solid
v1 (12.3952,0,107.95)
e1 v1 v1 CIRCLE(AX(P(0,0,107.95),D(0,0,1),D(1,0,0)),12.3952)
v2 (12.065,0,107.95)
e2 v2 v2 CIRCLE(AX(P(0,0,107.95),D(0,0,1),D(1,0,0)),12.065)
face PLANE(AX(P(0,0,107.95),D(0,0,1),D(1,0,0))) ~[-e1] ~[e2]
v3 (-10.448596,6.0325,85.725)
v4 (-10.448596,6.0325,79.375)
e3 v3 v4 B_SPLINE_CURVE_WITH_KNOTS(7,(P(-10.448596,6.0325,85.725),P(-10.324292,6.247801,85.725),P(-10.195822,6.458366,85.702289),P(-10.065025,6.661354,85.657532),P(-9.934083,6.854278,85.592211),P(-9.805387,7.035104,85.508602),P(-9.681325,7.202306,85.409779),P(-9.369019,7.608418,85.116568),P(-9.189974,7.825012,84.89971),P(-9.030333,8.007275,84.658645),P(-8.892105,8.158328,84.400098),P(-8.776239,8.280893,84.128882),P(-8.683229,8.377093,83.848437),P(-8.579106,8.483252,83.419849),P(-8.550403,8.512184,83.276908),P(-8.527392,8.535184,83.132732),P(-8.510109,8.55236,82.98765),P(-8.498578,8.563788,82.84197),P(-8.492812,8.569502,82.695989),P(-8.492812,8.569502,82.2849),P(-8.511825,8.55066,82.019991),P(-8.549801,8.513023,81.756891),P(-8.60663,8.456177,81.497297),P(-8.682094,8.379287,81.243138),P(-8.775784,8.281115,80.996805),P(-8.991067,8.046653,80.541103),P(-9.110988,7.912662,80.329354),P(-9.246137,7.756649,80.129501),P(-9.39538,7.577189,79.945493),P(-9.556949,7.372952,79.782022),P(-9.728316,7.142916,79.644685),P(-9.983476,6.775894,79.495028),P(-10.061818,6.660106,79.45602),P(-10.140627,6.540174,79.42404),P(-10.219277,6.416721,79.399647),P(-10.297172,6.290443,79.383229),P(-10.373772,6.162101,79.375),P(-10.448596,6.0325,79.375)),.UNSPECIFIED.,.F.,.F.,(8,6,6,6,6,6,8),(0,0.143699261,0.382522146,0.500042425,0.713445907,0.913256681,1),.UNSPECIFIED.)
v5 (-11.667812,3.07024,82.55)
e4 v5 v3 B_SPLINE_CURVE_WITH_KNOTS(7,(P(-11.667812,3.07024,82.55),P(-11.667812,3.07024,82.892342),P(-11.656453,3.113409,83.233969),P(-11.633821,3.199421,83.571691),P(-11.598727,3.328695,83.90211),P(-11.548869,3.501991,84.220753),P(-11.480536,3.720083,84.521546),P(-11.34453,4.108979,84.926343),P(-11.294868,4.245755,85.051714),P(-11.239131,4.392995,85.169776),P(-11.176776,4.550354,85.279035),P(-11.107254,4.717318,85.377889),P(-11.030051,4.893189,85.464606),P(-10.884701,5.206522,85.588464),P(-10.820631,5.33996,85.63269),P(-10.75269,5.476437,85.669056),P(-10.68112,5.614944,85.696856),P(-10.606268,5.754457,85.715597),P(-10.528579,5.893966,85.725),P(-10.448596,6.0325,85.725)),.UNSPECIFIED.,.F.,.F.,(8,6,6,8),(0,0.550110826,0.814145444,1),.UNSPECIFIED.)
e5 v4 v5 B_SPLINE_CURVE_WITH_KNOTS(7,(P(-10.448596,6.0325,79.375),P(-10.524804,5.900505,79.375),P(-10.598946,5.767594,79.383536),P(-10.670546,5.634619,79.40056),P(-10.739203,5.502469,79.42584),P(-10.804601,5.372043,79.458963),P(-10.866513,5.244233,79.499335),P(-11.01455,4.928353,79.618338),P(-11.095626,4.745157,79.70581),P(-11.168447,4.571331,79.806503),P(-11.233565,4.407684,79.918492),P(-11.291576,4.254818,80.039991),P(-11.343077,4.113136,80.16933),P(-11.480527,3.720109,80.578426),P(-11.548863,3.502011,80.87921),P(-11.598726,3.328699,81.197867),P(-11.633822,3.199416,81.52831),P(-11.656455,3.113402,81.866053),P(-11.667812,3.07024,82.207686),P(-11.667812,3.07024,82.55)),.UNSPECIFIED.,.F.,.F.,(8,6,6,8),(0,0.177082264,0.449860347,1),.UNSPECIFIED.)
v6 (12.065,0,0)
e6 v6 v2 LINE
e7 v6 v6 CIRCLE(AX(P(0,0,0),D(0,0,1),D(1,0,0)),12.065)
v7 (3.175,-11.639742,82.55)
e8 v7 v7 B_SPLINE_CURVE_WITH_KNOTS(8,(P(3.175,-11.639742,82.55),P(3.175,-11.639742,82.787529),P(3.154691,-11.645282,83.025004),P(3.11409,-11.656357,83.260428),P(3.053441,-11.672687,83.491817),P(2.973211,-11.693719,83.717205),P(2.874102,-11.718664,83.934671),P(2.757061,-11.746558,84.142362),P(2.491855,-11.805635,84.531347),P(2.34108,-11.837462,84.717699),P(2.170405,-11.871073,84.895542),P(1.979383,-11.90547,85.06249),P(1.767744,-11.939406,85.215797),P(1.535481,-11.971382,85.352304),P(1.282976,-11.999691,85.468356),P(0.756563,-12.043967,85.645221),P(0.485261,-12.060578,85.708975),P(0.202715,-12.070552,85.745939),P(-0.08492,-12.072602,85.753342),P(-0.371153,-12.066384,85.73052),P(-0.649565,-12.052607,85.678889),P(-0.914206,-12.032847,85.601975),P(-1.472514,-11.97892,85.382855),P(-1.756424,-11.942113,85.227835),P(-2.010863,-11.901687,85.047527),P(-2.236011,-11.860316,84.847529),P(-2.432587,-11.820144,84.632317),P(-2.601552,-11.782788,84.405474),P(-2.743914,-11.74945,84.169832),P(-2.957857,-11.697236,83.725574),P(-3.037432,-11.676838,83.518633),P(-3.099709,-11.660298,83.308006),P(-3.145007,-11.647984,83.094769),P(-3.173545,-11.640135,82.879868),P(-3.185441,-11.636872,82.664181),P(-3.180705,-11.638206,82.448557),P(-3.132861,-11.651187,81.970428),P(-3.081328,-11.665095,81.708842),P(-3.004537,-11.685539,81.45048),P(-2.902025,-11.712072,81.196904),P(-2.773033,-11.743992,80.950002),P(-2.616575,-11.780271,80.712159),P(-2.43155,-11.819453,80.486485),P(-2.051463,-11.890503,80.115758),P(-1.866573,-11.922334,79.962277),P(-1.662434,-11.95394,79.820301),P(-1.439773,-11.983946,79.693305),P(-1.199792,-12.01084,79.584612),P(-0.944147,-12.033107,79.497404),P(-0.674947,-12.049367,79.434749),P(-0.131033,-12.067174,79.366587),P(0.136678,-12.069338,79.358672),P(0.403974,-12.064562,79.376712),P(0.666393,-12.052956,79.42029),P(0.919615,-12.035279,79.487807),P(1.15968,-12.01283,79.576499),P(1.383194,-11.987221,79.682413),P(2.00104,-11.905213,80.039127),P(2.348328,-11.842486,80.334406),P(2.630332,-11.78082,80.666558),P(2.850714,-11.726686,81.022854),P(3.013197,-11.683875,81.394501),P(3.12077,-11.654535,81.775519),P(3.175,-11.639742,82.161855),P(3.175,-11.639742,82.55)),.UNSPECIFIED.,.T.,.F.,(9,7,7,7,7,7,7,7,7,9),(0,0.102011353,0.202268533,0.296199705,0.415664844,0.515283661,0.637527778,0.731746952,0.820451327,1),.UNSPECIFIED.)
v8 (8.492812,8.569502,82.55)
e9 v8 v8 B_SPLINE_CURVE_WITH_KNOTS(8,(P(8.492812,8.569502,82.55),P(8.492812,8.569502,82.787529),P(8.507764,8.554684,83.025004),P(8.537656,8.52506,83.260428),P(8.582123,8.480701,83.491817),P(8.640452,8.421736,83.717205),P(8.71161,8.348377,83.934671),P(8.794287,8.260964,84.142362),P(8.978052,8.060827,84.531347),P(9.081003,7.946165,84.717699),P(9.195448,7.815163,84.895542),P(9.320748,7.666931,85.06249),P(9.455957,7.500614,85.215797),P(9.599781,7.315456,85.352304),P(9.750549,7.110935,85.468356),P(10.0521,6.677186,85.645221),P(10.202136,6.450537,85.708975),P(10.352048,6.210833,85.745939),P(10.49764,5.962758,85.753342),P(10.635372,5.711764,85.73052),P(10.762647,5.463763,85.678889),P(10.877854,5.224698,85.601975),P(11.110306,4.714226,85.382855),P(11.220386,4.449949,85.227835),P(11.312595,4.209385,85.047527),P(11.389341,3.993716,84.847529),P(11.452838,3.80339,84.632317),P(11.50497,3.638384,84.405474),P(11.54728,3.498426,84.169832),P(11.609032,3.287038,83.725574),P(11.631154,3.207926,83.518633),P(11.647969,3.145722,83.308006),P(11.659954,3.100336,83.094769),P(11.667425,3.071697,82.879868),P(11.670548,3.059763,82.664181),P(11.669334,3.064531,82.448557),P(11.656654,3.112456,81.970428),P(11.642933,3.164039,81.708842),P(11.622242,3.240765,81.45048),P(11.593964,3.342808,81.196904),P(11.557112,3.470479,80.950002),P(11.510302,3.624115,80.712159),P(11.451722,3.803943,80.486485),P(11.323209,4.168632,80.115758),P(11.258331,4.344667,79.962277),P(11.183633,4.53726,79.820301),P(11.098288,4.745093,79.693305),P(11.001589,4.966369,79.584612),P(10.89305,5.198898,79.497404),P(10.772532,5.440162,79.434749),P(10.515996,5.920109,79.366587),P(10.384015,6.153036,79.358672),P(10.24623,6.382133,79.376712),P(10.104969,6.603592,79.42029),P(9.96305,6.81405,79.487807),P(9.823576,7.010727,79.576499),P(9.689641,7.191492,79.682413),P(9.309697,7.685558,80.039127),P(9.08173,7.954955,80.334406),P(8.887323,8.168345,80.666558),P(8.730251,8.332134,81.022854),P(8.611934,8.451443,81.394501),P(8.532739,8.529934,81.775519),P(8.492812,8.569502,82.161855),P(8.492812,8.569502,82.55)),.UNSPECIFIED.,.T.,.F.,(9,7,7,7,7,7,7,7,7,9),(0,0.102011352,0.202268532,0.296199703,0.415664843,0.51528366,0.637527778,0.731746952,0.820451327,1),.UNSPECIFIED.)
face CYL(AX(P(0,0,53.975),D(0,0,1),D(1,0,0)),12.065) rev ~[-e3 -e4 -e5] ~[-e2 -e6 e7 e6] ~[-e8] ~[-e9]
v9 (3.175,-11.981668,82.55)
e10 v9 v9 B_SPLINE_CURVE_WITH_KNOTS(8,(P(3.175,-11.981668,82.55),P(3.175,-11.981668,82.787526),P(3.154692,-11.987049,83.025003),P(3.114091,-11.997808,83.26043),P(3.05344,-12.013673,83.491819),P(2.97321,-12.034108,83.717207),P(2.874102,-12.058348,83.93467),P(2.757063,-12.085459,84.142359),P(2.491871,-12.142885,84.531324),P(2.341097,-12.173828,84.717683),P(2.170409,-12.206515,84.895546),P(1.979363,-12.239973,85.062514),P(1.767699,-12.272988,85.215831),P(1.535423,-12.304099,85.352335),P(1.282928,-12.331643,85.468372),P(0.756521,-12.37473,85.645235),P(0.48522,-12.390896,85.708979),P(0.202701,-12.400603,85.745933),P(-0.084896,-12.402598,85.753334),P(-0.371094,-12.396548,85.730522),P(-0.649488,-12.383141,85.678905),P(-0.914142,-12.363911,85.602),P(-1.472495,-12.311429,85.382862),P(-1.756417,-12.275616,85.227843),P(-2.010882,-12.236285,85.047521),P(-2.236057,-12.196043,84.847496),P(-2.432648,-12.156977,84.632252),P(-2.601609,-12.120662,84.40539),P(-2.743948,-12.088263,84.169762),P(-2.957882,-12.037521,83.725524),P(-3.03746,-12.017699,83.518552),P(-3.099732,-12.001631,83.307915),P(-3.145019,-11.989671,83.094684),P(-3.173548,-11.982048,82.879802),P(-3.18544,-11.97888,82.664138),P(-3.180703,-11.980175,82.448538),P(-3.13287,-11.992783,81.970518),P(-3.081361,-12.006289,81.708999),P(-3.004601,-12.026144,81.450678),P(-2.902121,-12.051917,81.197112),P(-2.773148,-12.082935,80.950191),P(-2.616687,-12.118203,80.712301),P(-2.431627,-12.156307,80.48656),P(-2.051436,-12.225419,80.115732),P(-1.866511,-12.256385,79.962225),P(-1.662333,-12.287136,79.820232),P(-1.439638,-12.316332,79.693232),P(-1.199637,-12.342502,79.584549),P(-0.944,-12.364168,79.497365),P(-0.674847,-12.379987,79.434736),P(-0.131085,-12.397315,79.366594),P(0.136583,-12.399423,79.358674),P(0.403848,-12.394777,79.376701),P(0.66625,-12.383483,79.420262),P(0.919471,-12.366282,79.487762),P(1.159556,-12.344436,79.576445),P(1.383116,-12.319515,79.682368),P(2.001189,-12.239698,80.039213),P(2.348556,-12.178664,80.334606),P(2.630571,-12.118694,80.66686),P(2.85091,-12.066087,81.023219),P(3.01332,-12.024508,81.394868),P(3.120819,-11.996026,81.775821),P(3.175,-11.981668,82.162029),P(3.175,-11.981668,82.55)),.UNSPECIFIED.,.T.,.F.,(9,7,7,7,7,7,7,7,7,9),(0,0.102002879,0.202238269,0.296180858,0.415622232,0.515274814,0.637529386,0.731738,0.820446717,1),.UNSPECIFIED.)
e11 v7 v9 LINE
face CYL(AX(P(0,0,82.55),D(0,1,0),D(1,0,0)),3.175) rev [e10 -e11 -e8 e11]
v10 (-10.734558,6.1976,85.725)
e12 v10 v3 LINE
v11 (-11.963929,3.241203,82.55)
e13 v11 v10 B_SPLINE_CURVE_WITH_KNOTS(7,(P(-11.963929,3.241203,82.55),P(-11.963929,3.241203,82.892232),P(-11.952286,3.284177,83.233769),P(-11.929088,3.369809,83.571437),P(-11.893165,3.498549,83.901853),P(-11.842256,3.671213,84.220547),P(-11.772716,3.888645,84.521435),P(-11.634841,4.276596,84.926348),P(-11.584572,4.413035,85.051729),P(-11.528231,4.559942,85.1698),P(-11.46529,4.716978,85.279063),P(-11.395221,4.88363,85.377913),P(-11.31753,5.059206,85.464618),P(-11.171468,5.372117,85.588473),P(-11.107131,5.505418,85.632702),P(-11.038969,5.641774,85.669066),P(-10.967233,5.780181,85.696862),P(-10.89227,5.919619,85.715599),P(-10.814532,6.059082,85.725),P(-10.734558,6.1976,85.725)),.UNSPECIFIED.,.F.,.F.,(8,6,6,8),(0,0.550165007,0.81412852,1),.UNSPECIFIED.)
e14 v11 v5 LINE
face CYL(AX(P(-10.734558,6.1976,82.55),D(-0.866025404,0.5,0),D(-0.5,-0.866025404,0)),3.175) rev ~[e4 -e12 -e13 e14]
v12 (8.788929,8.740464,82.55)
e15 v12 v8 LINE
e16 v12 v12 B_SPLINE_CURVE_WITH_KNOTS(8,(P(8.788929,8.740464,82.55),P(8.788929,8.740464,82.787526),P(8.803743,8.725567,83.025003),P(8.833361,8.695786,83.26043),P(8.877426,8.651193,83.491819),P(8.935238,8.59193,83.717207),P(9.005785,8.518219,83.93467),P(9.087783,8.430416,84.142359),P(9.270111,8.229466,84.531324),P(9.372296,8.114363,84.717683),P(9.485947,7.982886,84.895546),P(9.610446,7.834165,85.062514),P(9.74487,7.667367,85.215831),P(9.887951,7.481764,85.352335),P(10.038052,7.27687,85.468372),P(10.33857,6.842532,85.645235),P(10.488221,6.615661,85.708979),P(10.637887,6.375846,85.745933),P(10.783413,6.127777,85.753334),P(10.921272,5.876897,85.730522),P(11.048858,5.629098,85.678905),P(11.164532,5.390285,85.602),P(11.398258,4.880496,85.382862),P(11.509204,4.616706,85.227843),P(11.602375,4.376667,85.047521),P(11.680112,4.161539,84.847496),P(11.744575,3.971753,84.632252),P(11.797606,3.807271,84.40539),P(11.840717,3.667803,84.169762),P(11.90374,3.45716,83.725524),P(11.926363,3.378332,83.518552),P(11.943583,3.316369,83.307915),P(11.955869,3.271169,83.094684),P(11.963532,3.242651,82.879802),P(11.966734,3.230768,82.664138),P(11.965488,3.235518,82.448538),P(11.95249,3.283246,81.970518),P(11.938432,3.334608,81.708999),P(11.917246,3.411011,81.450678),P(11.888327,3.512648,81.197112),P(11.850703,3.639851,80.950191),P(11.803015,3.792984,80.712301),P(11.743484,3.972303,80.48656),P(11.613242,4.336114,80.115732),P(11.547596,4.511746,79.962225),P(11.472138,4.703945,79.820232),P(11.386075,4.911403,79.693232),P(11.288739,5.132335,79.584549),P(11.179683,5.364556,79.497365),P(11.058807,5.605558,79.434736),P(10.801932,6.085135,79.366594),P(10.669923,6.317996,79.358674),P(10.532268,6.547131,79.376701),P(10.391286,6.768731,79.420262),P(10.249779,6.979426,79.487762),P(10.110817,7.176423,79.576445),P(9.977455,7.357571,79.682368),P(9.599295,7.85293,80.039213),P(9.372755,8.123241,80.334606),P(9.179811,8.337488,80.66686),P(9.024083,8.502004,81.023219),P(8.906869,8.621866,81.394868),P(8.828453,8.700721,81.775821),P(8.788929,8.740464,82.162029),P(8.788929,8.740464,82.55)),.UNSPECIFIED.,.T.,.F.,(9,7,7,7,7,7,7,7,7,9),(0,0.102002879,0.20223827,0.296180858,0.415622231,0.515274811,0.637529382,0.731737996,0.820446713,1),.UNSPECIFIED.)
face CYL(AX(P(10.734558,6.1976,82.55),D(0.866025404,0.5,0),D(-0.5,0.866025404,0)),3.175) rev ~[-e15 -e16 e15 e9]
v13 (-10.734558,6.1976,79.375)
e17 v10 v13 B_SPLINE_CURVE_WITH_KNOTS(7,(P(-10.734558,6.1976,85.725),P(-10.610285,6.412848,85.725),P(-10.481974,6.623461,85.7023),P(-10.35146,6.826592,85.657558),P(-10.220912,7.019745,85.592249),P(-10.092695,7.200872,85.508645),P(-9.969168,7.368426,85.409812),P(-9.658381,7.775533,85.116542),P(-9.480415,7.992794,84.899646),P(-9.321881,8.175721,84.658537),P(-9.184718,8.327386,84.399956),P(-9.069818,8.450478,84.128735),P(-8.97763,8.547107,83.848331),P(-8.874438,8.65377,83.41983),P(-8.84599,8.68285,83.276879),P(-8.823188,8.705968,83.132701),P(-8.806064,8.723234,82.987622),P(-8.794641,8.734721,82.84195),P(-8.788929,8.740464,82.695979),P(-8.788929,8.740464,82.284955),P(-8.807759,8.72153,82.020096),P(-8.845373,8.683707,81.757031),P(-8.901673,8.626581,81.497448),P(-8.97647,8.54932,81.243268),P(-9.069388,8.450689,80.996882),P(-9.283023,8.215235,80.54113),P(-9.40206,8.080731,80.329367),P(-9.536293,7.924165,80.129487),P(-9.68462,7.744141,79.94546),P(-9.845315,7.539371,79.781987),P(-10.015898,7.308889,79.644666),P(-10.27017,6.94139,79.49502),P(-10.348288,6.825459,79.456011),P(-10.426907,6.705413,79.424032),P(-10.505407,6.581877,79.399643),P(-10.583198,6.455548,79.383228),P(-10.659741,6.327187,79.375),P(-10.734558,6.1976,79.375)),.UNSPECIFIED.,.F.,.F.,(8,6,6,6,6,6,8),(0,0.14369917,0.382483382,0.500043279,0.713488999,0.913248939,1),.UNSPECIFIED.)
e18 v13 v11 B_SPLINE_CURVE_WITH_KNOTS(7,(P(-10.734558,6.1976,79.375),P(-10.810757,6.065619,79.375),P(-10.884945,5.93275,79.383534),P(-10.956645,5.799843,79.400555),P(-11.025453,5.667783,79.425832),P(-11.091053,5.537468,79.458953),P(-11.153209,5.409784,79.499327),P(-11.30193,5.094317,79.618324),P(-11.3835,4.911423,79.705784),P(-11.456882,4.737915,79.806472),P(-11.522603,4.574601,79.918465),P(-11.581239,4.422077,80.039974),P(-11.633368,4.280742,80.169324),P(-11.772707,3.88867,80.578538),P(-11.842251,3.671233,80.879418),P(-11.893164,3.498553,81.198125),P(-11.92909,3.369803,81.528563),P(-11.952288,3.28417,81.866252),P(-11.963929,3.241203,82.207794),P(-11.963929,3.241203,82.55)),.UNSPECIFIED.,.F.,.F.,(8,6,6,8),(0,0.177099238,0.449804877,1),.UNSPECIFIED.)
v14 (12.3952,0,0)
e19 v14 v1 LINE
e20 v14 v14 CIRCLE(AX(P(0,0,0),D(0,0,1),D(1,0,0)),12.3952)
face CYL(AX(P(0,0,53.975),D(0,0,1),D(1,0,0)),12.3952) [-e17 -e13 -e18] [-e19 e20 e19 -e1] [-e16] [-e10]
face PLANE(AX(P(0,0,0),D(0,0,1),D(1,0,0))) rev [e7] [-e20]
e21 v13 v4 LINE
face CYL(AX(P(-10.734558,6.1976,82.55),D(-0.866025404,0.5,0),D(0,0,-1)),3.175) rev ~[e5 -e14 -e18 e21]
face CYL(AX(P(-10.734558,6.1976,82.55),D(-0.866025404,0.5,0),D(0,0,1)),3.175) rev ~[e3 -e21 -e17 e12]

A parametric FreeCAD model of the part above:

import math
import FreeCAD as App
import Part
import Sketcher
from FreeCAD import Vector
Q = App.Units.Quantity

doc = App.newDocument("Part")
body = doc.addObject("PartDesign::Body", "Body")

# Sketch on XZ plane
sketch1 = body.newObject("Sketcher::SketchObject", "Sketch")
sketch1.AttachmentSupport = (doc.getObject("XZ_Plane"), [""])
sketch1.MapMode = "FlatFace"
sketch1.addGeometry([
    Part.LineSegment(Vector(12.065, 107.95, 0), Vector(12.065, 0, 0)),
    Part.LineSegment(Vector(12.065, 0, 0), Vector(12.3952, 0, 0)),
    Part.LineSegment(Vector(12.3952, 0, 0), Vector(12.3952, 107.95, 0)),
    Part.LineSegment(Vector(12.3952, 107.95, 0), Vector(12.065, 107.95, 0)),
], False)
sketch1.addConstraint([
    Sketcher.Constraint("Coincident", 0, 2, 1, 1),
    Sketcher.Constraint("Coincident", 1, 2, 2, 1),
    Sketcher.Constraint("Coincident", 2, 2, 3, 1),
    Sketcher.Constraint("Coincident", 3, 2, 0, 1),
    Sketcher.Constraint("Vertical", 0),
    Sketcher.Constraint("Horizontal", 1),
    Sketcher.Constraint("Vertical", 2),
    Sketcher.Constraint("Horizontal", 3),
    Sketcher.Constraint("PointOnObject", 0, 2, -1),
    Sketcher.Constraint("DistanceY", 0, 2, 0, 1, Q("4.25 in")),
    Sketcher.Constraint("DistanceX", 1, 1, 1, 2, Q("0.013 in")),
    Sketcher.Constraint("DistanceX", -1, 1, 0, 2, Q("0.475 in")),
])
revolution = body.newObject("PartDesign::Revolution", "Revolution")
revolution.Profile = sketch1
revolution.ReferenceAxis = (sketch1, ["V_Axis"])
revolution.Angle = 360

# Sketch on XZ plane
sketch2 = body.newObject("Sketcher::SketchObject", "Sketch001")
sketch2.AttachmentSupport = (doc.getObject("XZ_Plane"), [""])
sketch2.MapMode = "FlatFace"
sketch2.addGeometry(Part.Circle(Vector(0, 82.55, 0), Vector(0, 0, 1), 3.175), False)
sketch2.addConstraint([
    Sketcher.Constraint("PointOnObject", 0, 3, -2),
    Sketcher.Constraint("Diameter", 0, Q("0.25 in")),
    Sketcher.Constraint("DistanceY", -1, 1, 0, 3, Q("3.25 in")),
])
pocket1 = body.newObject("PartDesign::Pocket", "Pocket")
pocket1.Profile = sketch2
pocket1.Type = "ThroughAll"
pocket1.Reversed = True

# Sketch on an angled plane
sketch3 = body.newObject("Sketcher::SketchObject", "Sketch002")
sketch3.Placement = App.Placement(Vector(10.734558, 6.1976, 0), App.Rotation(Vector(-0.5, 0.866025404, 0), Vector(0, 0, 1), Vector(0.866025404, 0.5, 0), "ZXY"))
sketch3.addGeometry(Part.Circle(Vector(0, 82.55, 0), Vector(0, 0, 1), 3.175), False)
sketch3.addConstraint([
    Sketcher.Constraint("PointOnObject", 0, 3, -2),
    Sketcher.Constraint("Diameter", 0, Q("0.25 in")),
    Sketcher.Constraint("DistanceY", -1, 1, 0, 3, Q("3.25 in")),
])
pocket2 = body.newObject("PartDesign::Pocket", "Pocket001")
pocket2.Profile = sketch3
pocket2.Length = 1.755458

# Sketch on an angled plane
sketch4 = body.newObject("Sketcher::SketchObject", "Sketch003")
sketch4.Placement = App.Placement(Vector(-10.734558, 6.1976, 0), App.Rotation(Vector(-0.5, -0.866025404, 0), Vector(0, 0, 1), Vector(-0.866025404, 0.5, 0), "ZXY"))
sketch4.addGeometry([
    Part.ArcOfCircle(Part.Circle(Vector(0, 82.55, 0), Vector(0, 0, 1), 3.175), math.radians(90), math.radians(270)),
    Part.ArcOfCircle(Part.Circle(Vector(0, 82.55, 0), Vector(0, 0, 1), 3.175), math.radians(-90), math.radians(0)),
    Part.ArcOfCircle(Part.Circle(Vector(0, 82.55, 0), Vector(0, 0, 1), 3.175), math.radians(0), math.radians(90)),
], False)
sketch4.addConstraint([
    Sketcher.Constraint("Tangent", 0, 2, 1, 1),
    Sketcher.Constraint("Tangent", 1, 2, 2, 1),
    Sketcher.Constraint("Tangent", 2, 2, 0, 1),
    Sketcher.Constraint("PointOnObject", 0, 3, -2),
    Sketcher.Constraint("PointOnObject", 0, 2, -2),
    Sketcher.Constraint("PointOnObject", 2, 2, -2),
    Sketcher.Constraint("Horizontal", 2, 3, 1, 2),
    Sketcher.Constraint("Radius", 0, Q("0.125 in")),
    Sketcher.Constraint("DistanceY", -1, 1, 0, 3, Q("3.25 in")),
])
pocket3 = body.newObject("PartDesign::Pocket", "Pocket002")
pocket3.Profile = sketch4
pocket3.Length = 1.755458

doc.recompute()
